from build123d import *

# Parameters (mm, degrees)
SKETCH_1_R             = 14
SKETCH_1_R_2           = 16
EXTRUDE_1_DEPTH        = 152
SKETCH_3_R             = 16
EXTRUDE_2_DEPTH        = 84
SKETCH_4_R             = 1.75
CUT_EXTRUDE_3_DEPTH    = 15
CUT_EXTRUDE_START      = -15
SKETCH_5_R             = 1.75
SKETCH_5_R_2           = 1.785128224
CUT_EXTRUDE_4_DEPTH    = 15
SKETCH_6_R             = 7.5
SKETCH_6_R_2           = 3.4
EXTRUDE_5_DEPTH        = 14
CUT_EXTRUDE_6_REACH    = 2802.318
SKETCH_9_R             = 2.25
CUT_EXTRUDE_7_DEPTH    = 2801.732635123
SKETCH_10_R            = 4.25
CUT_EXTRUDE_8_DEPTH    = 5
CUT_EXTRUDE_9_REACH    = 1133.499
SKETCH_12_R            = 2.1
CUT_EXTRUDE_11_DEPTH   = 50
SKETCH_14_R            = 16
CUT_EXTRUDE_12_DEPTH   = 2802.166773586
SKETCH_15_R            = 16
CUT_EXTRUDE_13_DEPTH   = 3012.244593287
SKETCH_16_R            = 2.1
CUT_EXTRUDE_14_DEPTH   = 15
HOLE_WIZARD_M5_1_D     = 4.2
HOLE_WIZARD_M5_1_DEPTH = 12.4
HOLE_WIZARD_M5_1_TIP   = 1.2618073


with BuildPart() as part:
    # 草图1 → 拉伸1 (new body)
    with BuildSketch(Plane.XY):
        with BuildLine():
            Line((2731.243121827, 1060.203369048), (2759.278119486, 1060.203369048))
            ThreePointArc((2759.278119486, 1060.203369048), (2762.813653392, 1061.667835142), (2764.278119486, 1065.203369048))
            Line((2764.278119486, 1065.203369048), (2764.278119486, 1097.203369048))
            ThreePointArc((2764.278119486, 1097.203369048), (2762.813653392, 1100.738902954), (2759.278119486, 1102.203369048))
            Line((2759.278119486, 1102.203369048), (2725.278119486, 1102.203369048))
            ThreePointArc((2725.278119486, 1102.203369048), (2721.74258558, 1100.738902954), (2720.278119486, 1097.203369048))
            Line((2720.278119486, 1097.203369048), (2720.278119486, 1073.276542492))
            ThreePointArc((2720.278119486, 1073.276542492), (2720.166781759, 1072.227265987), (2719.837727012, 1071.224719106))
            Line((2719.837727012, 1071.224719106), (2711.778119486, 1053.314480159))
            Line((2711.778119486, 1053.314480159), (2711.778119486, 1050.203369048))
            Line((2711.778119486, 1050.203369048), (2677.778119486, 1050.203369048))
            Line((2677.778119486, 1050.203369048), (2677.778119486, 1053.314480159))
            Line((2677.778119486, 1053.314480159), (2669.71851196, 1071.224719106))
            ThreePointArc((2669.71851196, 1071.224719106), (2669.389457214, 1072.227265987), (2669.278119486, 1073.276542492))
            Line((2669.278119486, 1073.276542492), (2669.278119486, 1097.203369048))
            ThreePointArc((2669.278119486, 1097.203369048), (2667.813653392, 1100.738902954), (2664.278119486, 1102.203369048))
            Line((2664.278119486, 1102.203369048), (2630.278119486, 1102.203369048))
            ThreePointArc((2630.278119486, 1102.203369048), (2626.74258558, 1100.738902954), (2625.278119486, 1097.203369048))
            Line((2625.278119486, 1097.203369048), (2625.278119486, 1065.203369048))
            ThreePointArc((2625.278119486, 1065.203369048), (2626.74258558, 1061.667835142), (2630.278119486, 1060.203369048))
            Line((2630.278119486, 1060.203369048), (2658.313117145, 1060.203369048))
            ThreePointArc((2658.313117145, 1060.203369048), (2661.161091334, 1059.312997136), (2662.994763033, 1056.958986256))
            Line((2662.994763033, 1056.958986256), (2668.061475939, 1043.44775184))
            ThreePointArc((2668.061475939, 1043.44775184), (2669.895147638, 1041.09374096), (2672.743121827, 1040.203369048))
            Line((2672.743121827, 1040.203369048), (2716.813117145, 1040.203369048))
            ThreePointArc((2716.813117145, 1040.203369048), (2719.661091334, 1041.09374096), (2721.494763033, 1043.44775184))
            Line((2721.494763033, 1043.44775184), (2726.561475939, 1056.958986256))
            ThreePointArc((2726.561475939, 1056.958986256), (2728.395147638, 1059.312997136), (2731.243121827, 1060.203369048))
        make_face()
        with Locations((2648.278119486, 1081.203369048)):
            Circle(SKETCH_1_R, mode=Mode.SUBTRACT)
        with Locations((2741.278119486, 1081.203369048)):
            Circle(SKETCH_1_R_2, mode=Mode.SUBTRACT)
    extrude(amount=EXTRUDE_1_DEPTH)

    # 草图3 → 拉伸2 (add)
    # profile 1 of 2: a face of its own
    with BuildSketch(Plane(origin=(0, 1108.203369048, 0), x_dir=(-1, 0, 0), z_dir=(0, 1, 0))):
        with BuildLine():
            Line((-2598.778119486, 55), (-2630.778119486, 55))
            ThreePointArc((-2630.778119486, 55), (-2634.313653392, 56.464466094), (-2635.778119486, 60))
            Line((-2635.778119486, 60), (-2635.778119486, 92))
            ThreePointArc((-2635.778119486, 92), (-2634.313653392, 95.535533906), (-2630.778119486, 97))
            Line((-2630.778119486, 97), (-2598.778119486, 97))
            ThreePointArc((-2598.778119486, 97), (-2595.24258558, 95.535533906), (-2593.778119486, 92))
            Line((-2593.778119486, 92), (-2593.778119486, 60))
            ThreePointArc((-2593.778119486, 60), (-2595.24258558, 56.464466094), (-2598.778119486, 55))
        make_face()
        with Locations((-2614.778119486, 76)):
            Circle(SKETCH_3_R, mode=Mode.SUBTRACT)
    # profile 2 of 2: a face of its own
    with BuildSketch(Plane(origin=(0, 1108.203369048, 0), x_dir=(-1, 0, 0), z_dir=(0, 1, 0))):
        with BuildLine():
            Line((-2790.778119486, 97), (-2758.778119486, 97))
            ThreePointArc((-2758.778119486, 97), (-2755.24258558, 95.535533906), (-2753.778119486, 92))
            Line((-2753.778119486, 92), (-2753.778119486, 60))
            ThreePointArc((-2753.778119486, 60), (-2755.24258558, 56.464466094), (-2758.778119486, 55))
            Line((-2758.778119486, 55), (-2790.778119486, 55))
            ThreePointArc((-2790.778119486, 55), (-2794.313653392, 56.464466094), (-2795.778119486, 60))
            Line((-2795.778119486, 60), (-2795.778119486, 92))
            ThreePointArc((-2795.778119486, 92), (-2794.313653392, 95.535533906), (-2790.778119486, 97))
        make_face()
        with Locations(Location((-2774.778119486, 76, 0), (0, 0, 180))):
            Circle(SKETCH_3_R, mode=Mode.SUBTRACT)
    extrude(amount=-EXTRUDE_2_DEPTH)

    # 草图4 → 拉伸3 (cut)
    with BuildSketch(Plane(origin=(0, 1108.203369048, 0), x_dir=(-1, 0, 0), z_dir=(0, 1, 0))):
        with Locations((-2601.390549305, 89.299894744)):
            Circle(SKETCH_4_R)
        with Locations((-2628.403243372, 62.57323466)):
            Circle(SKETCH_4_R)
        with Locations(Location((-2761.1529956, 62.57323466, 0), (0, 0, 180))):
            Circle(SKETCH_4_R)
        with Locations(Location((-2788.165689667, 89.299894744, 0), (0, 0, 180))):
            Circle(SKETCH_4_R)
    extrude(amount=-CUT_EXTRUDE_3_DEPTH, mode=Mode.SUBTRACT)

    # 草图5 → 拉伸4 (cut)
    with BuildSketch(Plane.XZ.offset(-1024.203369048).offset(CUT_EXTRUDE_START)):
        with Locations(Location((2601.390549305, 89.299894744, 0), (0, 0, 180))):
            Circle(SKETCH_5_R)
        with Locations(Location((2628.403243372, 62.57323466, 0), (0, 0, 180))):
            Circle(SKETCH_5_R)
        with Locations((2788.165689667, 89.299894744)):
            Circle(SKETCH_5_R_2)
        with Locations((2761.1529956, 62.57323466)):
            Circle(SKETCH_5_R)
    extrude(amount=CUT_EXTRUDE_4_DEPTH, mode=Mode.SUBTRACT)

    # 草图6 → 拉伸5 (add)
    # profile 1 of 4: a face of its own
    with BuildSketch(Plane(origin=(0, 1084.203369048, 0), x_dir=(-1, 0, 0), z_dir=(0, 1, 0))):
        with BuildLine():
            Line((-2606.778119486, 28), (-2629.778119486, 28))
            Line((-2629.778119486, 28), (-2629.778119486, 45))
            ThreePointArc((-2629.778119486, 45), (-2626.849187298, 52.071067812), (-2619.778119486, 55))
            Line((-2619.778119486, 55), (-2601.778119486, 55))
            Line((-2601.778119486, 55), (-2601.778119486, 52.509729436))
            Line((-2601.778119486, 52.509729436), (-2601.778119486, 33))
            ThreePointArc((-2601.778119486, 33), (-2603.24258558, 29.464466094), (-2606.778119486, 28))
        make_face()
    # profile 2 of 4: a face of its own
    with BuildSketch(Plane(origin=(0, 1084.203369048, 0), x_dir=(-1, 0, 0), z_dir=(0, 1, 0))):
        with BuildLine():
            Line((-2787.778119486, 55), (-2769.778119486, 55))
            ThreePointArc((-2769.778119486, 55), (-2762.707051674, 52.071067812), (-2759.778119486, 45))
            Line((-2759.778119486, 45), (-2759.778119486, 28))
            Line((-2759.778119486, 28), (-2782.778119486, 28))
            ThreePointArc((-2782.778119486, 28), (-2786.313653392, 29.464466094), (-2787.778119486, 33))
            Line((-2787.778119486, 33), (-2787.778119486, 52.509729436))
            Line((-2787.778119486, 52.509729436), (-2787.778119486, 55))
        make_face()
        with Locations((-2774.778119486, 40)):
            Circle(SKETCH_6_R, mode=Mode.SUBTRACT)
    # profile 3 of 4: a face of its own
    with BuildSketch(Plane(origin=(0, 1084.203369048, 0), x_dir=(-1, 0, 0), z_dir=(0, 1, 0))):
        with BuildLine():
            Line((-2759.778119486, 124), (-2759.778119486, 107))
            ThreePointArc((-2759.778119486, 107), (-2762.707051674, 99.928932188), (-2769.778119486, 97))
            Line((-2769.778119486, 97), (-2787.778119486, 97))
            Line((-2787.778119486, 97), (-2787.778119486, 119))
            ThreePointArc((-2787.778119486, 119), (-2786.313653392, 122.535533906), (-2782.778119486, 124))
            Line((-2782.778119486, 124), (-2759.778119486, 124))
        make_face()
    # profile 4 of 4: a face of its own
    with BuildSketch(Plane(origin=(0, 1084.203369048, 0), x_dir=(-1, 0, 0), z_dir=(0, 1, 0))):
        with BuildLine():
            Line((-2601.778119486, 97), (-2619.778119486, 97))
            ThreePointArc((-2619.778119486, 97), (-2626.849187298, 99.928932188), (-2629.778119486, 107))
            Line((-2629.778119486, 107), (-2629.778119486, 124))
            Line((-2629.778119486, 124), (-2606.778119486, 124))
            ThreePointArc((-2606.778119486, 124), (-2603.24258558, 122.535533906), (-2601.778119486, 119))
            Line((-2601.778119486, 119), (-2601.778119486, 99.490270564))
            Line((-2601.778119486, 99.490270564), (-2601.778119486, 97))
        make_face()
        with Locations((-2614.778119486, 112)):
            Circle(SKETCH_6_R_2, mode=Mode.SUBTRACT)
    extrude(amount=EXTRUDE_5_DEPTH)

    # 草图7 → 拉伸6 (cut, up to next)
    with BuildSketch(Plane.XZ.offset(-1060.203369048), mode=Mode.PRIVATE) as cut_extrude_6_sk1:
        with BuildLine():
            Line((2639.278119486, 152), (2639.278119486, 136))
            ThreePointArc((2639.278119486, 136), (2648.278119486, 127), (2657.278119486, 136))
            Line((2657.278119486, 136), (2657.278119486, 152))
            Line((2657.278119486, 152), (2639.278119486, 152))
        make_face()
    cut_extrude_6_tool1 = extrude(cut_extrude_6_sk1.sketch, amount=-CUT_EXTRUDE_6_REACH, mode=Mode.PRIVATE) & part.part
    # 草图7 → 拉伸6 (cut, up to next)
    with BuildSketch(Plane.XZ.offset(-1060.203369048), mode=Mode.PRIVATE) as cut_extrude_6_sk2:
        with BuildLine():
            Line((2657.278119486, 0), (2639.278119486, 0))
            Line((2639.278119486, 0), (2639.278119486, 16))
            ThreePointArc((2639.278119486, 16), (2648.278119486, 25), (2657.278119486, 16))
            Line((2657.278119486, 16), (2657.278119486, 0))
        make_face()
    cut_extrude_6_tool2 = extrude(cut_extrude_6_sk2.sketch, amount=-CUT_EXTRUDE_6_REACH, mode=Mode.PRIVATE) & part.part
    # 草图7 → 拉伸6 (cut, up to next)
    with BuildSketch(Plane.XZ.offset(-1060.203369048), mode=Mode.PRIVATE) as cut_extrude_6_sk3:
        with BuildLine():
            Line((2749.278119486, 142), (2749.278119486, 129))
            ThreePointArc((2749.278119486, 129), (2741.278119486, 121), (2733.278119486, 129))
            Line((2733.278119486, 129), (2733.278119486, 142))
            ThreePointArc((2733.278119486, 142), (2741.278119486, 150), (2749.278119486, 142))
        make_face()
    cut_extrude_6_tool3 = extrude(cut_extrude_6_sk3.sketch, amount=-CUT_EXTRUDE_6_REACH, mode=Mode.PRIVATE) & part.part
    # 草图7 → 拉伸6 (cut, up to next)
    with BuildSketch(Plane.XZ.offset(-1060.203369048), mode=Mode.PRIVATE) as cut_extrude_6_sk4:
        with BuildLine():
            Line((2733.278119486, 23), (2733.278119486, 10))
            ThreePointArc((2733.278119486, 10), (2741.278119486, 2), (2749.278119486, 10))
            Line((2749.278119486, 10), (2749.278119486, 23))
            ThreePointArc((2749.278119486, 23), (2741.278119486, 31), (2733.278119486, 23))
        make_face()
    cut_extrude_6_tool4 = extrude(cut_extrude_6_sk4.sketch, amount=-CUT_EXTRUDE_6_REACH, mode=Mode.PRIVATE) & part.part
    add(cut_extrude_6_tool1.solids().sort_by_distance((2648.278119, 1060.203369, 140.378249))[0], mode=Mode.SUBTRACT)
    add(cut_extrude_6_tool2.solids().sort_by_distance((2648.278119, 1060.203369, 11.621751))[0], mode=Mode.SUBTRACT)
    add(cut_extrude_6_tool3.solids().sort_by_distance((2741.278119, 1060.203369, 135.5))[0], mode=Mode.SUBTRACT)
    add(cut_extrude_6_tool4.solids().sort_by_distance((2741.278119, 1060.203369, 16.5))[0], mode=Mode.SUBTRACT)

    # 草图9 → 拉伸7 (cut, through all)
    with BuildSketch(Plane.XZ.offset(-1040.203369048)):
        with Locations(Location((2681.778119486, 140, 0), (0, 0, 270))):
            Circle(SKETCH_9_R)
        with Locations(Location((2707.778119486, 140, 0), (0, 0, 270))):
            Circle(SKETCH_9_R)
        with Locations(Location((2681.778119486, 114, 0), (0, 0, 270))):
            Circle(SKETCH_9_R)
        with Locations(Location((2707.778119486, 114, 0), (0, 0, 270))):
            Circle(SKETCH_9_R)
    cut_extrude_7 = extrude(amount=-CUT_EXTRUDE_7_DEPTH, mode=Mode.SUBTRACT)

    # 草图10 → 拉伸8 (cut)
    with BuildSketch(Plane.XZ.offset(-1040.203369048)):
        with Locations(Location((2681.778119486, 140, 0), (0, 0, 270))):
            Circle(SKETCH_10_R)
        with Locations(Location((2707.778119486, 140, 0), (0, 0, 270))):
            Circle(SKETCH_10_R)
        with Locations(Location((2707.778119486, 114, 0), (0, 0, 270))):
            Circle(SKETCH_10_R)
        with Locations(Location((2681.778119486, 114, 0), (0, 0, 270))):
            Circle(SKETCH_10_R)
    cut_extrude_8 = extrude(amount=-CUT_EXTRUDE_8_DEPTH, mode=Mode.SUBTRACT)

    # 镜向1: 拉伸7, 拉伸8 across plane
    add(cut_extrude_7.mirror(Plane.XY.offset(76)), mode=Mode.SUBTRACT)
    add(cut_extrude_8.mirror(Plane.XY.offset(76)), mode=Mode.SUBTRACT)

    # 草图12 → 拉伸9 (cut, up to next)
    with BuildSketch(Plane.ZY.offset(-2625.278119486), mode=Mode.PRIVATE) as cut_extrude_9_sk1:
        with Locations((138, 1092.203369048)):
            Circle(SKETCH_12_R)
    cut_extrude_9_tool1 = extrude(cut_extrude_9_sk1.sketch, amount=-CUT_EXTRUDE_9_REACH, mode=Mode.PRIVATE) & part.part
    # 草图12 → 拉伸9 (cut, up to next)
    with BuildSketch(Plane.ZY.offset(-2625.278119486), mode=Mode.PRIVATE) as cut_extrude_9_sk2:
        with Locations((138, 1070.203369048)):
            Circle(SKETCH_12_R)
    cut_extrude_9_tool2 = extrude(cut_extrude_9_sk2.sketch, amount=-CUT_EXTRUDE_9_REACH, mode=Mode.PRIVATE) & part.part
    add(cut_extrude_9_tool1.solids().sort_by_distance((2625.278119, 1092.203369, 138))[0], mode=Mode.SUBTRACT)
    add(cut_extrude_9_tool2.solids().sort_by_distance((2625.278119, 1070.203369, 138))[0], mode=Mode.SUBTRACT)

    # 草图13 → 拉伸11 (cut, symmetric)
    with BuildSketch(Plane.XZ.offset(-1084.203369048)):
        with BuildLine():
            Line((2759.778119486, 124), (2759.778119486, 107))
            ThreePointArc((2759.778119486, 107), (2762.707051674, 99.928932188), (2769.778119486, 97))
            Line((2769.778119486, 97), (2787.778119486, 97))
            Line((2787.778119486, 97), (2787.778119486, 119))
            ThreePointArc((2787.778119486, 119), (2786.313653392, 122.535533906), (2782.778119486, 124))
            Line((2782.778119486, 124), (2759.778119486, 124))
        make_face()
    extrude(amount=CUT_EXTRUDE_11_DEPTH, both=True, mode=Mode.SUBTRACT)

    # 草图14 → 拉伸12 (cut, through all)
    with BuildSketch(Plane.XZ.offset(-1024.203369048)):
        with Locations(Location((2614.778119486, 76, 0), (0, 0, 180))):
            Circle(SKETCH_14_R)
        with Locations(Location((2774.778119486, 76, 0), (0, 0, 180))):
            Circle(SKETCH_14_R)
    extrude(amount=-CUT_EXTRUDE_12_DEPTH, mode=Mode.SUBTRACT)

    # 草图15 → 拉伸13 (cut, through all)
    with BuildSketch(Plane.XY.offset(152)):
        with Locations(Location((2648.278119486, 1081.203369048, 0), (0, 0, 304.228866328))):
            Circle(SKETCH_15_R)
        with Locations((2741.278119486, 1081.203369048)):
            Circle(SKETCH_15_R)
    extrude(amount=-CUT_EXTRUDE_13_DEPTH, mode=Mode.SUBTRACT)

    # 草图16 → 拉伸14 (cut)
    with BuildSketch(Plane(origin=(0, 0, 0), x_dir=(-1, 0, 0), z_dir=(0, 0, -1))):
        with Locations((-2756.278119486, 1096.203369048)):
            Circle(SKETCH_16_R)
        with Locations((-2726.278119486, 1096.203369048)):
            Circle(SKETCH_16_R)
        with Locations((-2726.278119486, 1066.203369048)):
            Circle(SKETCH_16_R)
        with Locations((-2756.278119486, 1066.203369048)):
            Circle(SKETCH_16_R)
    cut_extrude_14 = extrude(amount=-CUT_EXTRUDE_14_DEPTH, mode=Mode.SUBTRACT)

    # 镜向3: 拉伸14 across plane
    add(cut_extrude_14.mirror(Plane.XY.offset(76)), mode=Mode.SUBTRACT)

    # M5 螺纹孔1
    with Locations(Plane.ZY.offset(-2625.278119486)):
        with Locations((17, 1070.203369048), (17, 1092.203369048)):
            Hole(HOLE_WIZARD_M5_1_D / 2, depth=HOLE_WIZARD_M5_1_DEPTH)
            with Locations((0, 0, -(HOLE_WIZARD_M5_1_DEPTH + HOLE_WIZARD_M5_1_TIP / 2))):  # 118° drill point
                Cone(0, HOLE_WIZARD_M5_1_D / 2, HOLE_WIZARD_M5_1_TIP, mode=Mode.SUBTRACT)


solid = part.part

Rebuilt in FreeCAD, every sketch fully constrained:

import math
import FreeCAD as App
import Part
import Sketcher

V = App.Vector

doc = App.newDocument("Part")
body = doc.addObject("PartDesign::Body", "Body")

# Sketch on XY plane
sketch1 = doc.addObject("Sketcher::SketchObject", "Sketch")
body.addObject(sketch1)
sketch1.AttachmentSupport = (doc.XY_Plane, [""])
sketch1.MapMode = "FlatFace"
sketch1.addGeometry([
    Part.LineSegment(V(2731.2, 1060.2, 0), V(2759.3, 1060.2, 0)),  # 0
    Part.ArcOfCircle(Part.Circle(V(2759.3, 1065.2, 0), V(0, 0, 1), 5), math.radians(-90), math.radians(0)),  # 1
    Part.LineSegment(V(2764.3, 1065.2, 0), V(2764.3, 1097.2, 0)),  # 2
    Part.ArcOfCircle(Part.Circle(V(2759.3, 1097.2, 0), V(0, 0, 1), 5), math.radians(0), math.radians(90)),  # 3
    Part.LineSegment(V(2759.3, 1102.2, 0), V(2725.3, 1102.2, 0)),  # 4
    Part.ArcOfCircle(Part.Circle(V(2725.3, 1097.2, 0), V(0, 0, 1), 5), math.radians(90), math.radians(180)),  # 5
    Part.LineSegment(V(2720.3, 1097.2, 0), V(2720.3, 1073.3, 0)),  # 6
    Part.ArcOfCircle(Part.Circle(V(2715.3, 1073.3, 0), V(0, 0, 1), 5), math.radians(-24), math.radians(0)),  # 7
    Part.LineSegment(V(2719.8, 1071.2, 0), V(2711.8, 1053.3, 0)),  # 8
    Part.LineSegment(V(2711.8, 1053.3, 0), V(2711.8, 1050.2, 0)),  # 9
    Part.LineSegment(V(2711.8, 1050.2, 0), V(2677.8, 1050.2, 0)),  # 10
    Part.LineSegment(V(2677.8, 1050.2, 0), V(2677.8, 1053.3, 0)),  # 11
    Part.LineSegment(V(2677.8, 1053.3, 0), V(2669.7, 1071.2, 0)),  # 12
    Part.ArcOfCircle(Part.Circle(V(2674.3, 1073.3, 0), V(0, 0, 1), 5), math.radians(-180), math.radians(-156)),  # 13
    Part.LineSegment(V(2669.3, 1073.3, 0), V(2669.3, 1097.2, 0)),  # 14
    Part.ArcOfCircle(Part.Circle(V(2664.3, 1097.2, 0), V(0, 0, 1), 5), math.radians(0), math.radians(90)),  # 15
    Part.LineSegment(V(2664.3, 1102.2, 0), V(2630.3, 1102.2, 0)),  # 16
    Part.ArcOfCircle(Part.Circle(V(2630.3, 1097.2, 0), V(0, 0, 1), 5), math.radians(90), math.radians(180)),  # 17
    Part.LineSegment(V(2625.3, 1097.2, 0), V(2625.3, 1065.2, 0)),  # 18
    Part.ArcOfCircle(Part.Circle(V(2630.3, 1065.2, 0), V(0, 0, 1), 5), math.radians(180), math.radians(270)),  # 19
    Part.LineSegment(V(2630.3, 1060.2, 0), V(2658.3, 1060.2, 0)),  # 20
    Part.ArcOfCircle(Part.Circle(V(2658.3, 1055.2, 0), V(0, 0, 1), 5), math.radians(21), math.radians(90)),  # 21
    Part.LineSegment(V(2663, 1057, 0), V(2668.1, 1043.4, 0)),  # 22
    Part.ArcOfCircle(Part.Circle(V(2672.7, 1045.2, 0), V(0, 0, 1), 5), math.radians(-159), math.radians(-90)),  # 23
    Part.LineSegment(V(2672.7, 1040.2, 0), V(2716.8, 1040.2, 0)),  # 24
    Part.ArcOfCircle(Part.Circle(V(2716.8, 1045.2, 0), V(0, 0, 1), 5), math.radians(-90), math.radians(-21)),  # 25
    Part.LineSegment(V(2721.5, 1043.4, 0), V(2726.6, 1057, 0)),  # 26
    Part.ArcOfCircle(Part.Circle(V(2731.2, 1055.2, 0), V(0, 0, 1), 5), math.radians(90), math.radians(159)),  # 27
    Part.Circle(V(2648.3, 1081.2, 0), V(0, 0, 1), 14),  # 28
    Part.Circle(V(2741.3, 1081.2, 0), V(0, 0, 1), 16),  # 29
], False)
sketch1.addConstraint([
    Sketcher.Constraint("Tangent", 0, 2, 1, 1),
    Sketcher.Constraint("Tangent", 1, 2, 2, 1),
    Sketcher.Constraint("Tangent", 2, 2, 3, 1),
    Sketcher.Constraint("Tangent", 3, 2, 4, 1),
    Sketcher.Constraint("Tangent", 4, 2, 5, 1),
    Sketcher.Constraint("Tangent", 5, 2, 6, 1),
    Sketcher.Constraint("Tangent", 6, 2, 7, 2),
    Sketcher.Constraint("Tangent", 7, 1, 8, 1),
    Sketcher.Constraint("Coincident", 8, 2, 9, 1),
    Sketcher.Constraint("Coincident", 9, 2, 10, 1),
    Sketcher.Constraint("Coincident", 10, 2, 11, 1),
    Sketcher.Constraint("Coincident", 11, 2, 12, 1),
    Sketcher.Constraint("Tangent", 12, 2, 13, 2),
    Sketcher.Constraint("Tangent", 13, 1, 14, 1),
    Sketcher.Constraint("Tangent", 14, 2, 15, 1),
    Sketcher.Constraint("Tangent", 15, 2, 16, 1),
    Sketcher.Constraint("Tangent", 16, 2, 17, 1),
    Sketcher.Constraint("Tangent", 17, 2, 18, 1),
    Sketcher.Constraint("Tangent", 18, 2, 19, 1),
    Sketcher.Constraint("Tangent", 19, 2, 20, 1),
    Sketcher.Constraint("Tangent", 20, 2, 21, 2),
    Sketcher.Constraint("Tangent", 21, 1, 22, 1),
    Sketcher.Constraint("Tangent", 22, 2, 23, 1),
    Sketcher.Constraint("Tangent", 23, 2, 24, 1),
    Sketcher.Constraint("Tangent", 24, 2, 25, 1),
    Sketcher.Constraint("Tangent", 25, 2, 26, 1),
    Sketcher.Constraint("Tangent", 26, 2, 27, 2),
    Sketcher.Constraint("Tangent", 27, 1, 0, 1),
    Sketcher.Constraint("Horizontal", 0),
    Sketcher.Constraint("Vertical", 2),
    Sketcher.Constraint("Horizontal", 4),
    Sketcher.Constraint("Vertical", 6),
    Sketcher.Constraint("Vertical", 9),
    Sketcher.Constraint("Horizontal", 10),
    Sketcher.Constraint("Vertical", 11),
    Sketcher.Constraint("Vertical", 14),
    Sketcher.Constraint("Horizontal", 16),
    Sketcher.Constraint("Vertical", 18),
    Sketcher.Constraint("Horizontal", 20),
    Sketcher.Constraint("Horizontal", 24),
    Sketcher.Constraint("Equal", 1, 3),
    Sketcher.Constraint("Equal", 3, 5),
    Sketcher.Constraint("Equal", 5, 7),
    Sketcher.Constraint("Equal", 7, 13),
    Sketcher.Constraint("Equal", 13, 15),
    Sketcher.Constraint("Equal", 15, 17),
    Sketcher.Constraint("Equal", 17, 19),
    Sketcher.Constraint("Equal", 19, 21),
    Sketcher.Constraint("Equal", 21, 23),
    Sketcher.Constraint("Equal", 23, 25),
    Sketcher.Constraint("Equal", 25, 27),
    Sketcher.Constraint("Horizontal", 7, 3, 13, 3),
    Sketcher.Constraint("Horizontal", 5, 3, 15, 3),
    Sketcher.Constraint("Horizontal", 1, 3, 19, 3),
    Sketcher.Constraint("Horizontal", 28, 3, 29, 3),
    Sketcher.Constraint("Horizontal", 8, 2, 11, 2),
    Sketcher.Constraint("Horizontal", 7, 1, 12, 2),
    Sketcher.Constraint("Horizontal", 22, 2, 25, 2),
    Sketcher.Constraint("Equal", 4, 10),
    Sketcher.Constraint("Equal", 10, 16),
    Sketcher.Constraint("Equal", 0, 20),
    Sketcher.Constraint("Diameter", 28, 28.0),
    Sketcher.Constraint("Diameter", 29, 32.0),
    Sketcher.Constraint("Radius", 1, 5.0),
    Sketcher.Constraint("DistanceX", 4, 2, 4, 1, 34.0),
    Sketcher.Constraint("DistanceY", 2, 1, 2, 2, 32.0),
    Sketcher.Constraint("DistanceX", 13, 3, 7, 3, 41.0),
    Sketcher.Constraint("DistanceY", 23, 3, 21, 3, 10.0),
    Sketcher.Constraint("DistanceX", 28, 3, 15, 3, 16.0),
    Sketcher.Constraint("DistanceY", 28, 3, 15, 3, 16.0),
    Sketcher.Constraint("DistanceX", 5, 3, 29, 3, 16.0),
    Sketcher.Constraint("DistanceY", 25, 3, 9, 2, 5.0),
    Sketcher.Constraint("DistanceY", 9, 2, 9, 1, 3.111111),
    Sketcher.Constraint("Distance", 8, 19.64011),
    Sketcher.Constraint("DistanceX", 0, 1, 0, 2, 28.034998),
    Sketcher.Constraint("DistanceX", 24, 1, 24, 2, 44.069995),
    Sketcher.Constraint("DistanceX", -1, 1, 1, 3, 2759.278119),
    Sketcher.Constraint("DistanceY", -1, 1, 1, 3, 1065.203369),
])
pad1 = doc.addObject("PartDesign::Pad", "Pad")
body.addObject(pad1)
pad1.Profile = sketch1
pad1.Length = 152

# Sketch on XZ plane
sketch2 = doc.addObject("Sketcher::SketchObject", "Sketch001")
body.addObject(sketch2)
sketch2.AttachmentSupport = (doc.XZ_Plane, [""])
sketch2.MapMode = "FlatFace"
sketch2.AttachmentOffset = App.Placement(V(0, 0, -1108.203369), App.Rotation())
sketch2.addGeometry([
    Part.LineSegment(V(2631, 55, 0), V(2599, 55, 0)),  # 0
    Part.ArcOfCircle(Part.Circle(V(2599, 60, 0), V(0, 0, 1), 5), math.radians(180), math.radians(270)),  # 1
    Part.LineSegment(V(2594, 60, 0), V(2594, 92, 0)),  # 2
    Part.ArcOfCircle(Part.Circle(V(2599, 92, 0), V(0, 0, 1), 5), math.radians(90), math.radians(180)),  # 3
    Part.LineSegment(V(2599, 97, 0), V(2631, 97, 0)),  # 4
    Part.ArcOfCircle(Part.Circle(V(2631, 92, 0), V(0, 0, 1), 5), math.radians(0), math.radians(90)),  # 5
    Part.LineSegment(V(2636, 92, 0), V(2636, 60, 0)),  # 6
    Part.ArcOfCircle(Part.Circle(V(2631, 60, 0), V(0, 0, 1), 5), math.radians(-90), math.radians(0)),  # 7
    Part.Circle(V(2615, 76, 0), V(0, 0, 1), 16),  # 8
    Part.LineSegment(V(2759, 97, 0), V(2791, 97, 0)),  # 9
    Part.ArcOfCircle(Part.Circle(V(2791, 92, 0), V(0, 0, 1), 5), math.radians(0), math.radians(90)),  # 10
    Part.LineSegment(V(2796, 92, 0), V(2796, 60, 0)),  # 11
    Part.ArcOfCircle(Part.Circle(V(2791, 60, 0), V(0, 0, 1), 5), math.radians(-90), math.radians(0)),  # 12
    Part.LineSegment(V(2791, 55, 0), V(2759, 55, 0)),  # 13
    Part.ArcOfCircle(Part.Circle(V(2759, 60, 0), V(0, 0, 1), 5), math.radians(180), math.radians(270)),  # 14
    Part.LineSegment(V(2754, 60, 0), V(2754, 92, 0)),  # 15
    Part.ArcOfCircle(Part.Circle(V(2759, 92, 0), V(0, 0, 1), 5), math.radians(90), math.radians(180)),  # 16
    Part.Circle(V(2775, 76, 0), V(0, 0, 1), 16),  # 17
], False)
sketch2.addConstraint([
    Sketcher.Constraint("Tangent", 0, 2, 1, 2),
    Sketcher.Constraint("Tangent", 1, 1, 2, 1),
    Sketcher.Constraint("Tangent", 2, 2, 3, 2),
    Sketcher.Constraint("Tangent", 3, 1, 4, 1),
    Sketcher.Constraint("Tangent", 4, 2, 5, 2),
    Sketcher.Constraint("Tangent", 5, 1, 6, 1),
    Sketcher.Constraint("Tangent", 6, 2, 7, 2),
    Sketcher.Constraint("Tangent", 7, 1, 0, 1),
    Sketcher.Constraint("Tangent", 9, 2, 10, 2),
    Sketcher.Constraint("Tangent", 10, 1, 11, 1),
    Sketcher.Constraint("Tangent", 11, 2, 12, 2),
    Sketcher.Constraint("Tangent", 12, 1, 13, 1),
    Sketcher.Constraint("Tangent", 13, 2, 14, 2),
    Sketcher.Constraint("Tangent", 14, 1, 15, 1),
    Sketcher.Constraint("Tangent", 15, 2, 16, 2),
    Sketcher.Constraint("Tangent", 16, 1, 9, 1),
    Sketcher.Constraint("Horizontal", 0),
    Sketcher.Constraint("Vertical", 2),
    Sketcher.Constraint("Horizontal", 4),
    Sketcher.Constraint("Vertical", 6),
    Sketcher.Constraint("Horizontal", 9),
    Sketcher.Constraint("Vertical", 11),
    Sketcher.Constraint("Horizontal", 13),
    Sketcher.Constraint("Vertical", 15),
    Sketcher.Constraint("Equal", 1, 3),
    Sketcher.Constraint("Equal", 3, 5),
    Sketcher.Constraint("Equal", 5, 7),
    Sketcher.Constraint("Equal", 7, 10),
    Sketcher.Constraint("Equal", 10, 12),
    Sketcher.Constraint("Equal", 12, 14),
    Sketcher.Constraint("Equal", 14, 16),
    Sketcher.Constraint("Equal", 8, 17),
    Sketcher.Constraint("Horizontal", 5, 3, 10, 3),
    Sketcher.Constraint("Horizontal", 7, 3, 12, 3),
    Sketcher.Constraint("Horizontal", 8, 3, 17, 3),
    Sketcher.Constraint("Equal", 4, 9),
    Sketcher.Constraint("Equal", 13, 2),
    Sketcher.Constraint("Diameter", 8, 32.0),
    Sketcher.Constraint("Radius", 1, 5.0),
    Sketcher.Constraint("DistanceX", 0, 2, 0, 1, 32.0),
    Sketcher.Constraint("DistanceY", -1, 1, 1, 3, 60.0),
    Sketcher.Constraint("DistanceY", -1, 1, 8, 3, 76.0),
    Sketcher.Constraint("DistanceX", 1, 3, 8, 3, 16.0),
    Sketcher.Constraint("DistanceX", 5, 3, 10, 3, 160.0),
    Sketcher.Constraint("DistanceX", 17, 3, 10, 3, 16.0),
    Sketcher.Constraint("DistanceX", -1, 1, 1, 3, 2598.778119),
])
pad2 = doc.addObject("PartDesign::Pad", "Pad001")
body.addObject(pad2)
pad2.Profile = sketch2
pad2.Length = 84

# Sketch on XZ plane
sketch3 = doc.addObject("Sketcher::SketchObject", "Sketch002")
body.addObject(sketch3)
sketch3.AttachmentSupport = (doc.XZ_Plane, [""])
sketch3.MapMode = "FlatFace"
sketch3.AttachmentOffset = App.Placement(V(0, 0, -1108.203369), App.Rotation())
sketch3.addGeometry([
    Part.Circle(V(2601.4, 89.3, 0), V(0, 0, 1), 1.8),
    Part.Circle(V(2628.4, 62.6, 0), V(0, 0, 1), 1.8),
    Part.Circle(V(2761.2, 62.6, 0), V(0, 0, 1), 1.8),
    Part.Circle(V(2788.2, 89.3, 0), V(0, 0, 1), 1.8),
], False)
sketch3.addConstraint([
    Sketcher.Constraint("Equal", 0, 1),
    Sketcher.Constraint("Equal", 1, 2),
    Sketcher.Constraint("Equal", 2, 3),
    Sketcher.Constraint("Horizontal", 1, 3, 2, 3),
    Sketcher.Constraint("Horizontal", 0, 3, 3, 3),
    Sketcher.Constraint("Diameter", 0, 3.5),
    Sketcher.Constraint("DistanceX", -1, 1, 0, 3, 2601.390549),
    Sketcher.Constraint("DistanceX", -1, 1, 3, 3, 2788.16569),
    Sketcher.Constraint("DistanceY", 1, 3, 0, 3, 26.72666),
    Sketcher.Constraint("DistanceY", -1, 1, 0, 3, 89.299895),
    Sketcher.Constraint("DistanceX", -1, 1, 1, 3, 2628.403243),
    Sketcher.Constraint("DistanceX", -1, 1, 2, 3, 2761.152996),
])
pocket1 = doc.addObject("PartDesign::Pocket", "Pocket")
body.addObject(pocket1)
pocket1.Profile = sketch3
pocket1.Length = 15
pocket1.Reversed = True

# Sketch on XZ plane
sketch4 = doc.addObject("Sketcher::SketchObject", "Sketch003")
body.addObject(sketch4)
sketch4.AttachmentSupport = (doc.XZ_Plane, [""])
sketch4.MapMode = "FlatFace"
sketch4.AttachmentOffset = App.Placement(V(0, 0, -1039.203369), App.Rotation())
sketch4.addGeometry([
    Part.Circle(V(2601.4, 89.3, 0), V(0, 0, 1), 1.8),
    Part.Circle(V(2628.4, 62.6, 0), V(0, 0, 1), 1.8),
    Part.Circle(V(2788.2, 89.3, 0), V(0, 0, 1), 1.8),
    Part.Circle(V(2761.2, 62.6, 0), V(0, 0, 1), 1.8),
], False)
sketch4.addConstraint([
    Sketcher.Constraint("Equal", 0, 1),
    Sketcher.Constraint("Equal", 1, 3),
    Sketcher.Constraint("Horizontal", 0, 3, 2, 3),
    Sketcher.Constraint("Horizontal", 1, 3, 3, 3),
    Sketcher.Constraint("Diameter", 0, 3.5),
    Sketcher.Constraint("Diameter", 2, 3.570256),
    Sketcher.Constraint("DistanceX", -1, 1, 0, 3, 2601.390549),
    Sketcher.Constraint("DistanceX", -1, 1, 2, 3, 2788.16569),
    Sketcher.Constraint("DistanceY", 1, 3, 0, 3, 26.72666),
    Sketcher.Constraint("DistanceY", -1, 1, 0, 3, 89.299895),
    Sketcher.Constraint("DistanceX", -1, 1, 1, 3, 2628.403243),
    Sketcher.Constraint("DistanceX", -1, 1, 3, 3, 2761.152996),
])
pocket2 = doc.addObject("PartDesign::Pocket", "Pocket001")
body.addObject(pocket2)
pocket2.Profile = sketch4
pocket2.Length = 15
pocket2.Reversed = True

# Sketch on XZ plane
sketch5 = doc.addObject("Sketcher::SketchObject", "Sketch004")
body.addObject(sketch5)
sketch5.AttachmentSupport = (doc.XZ_Plane, [""])
sketch5.MapMode = "FlatFace"
sketch5.AttachmentOffset = App.Placement(V(0, 0, -1084.203369), App.Rotation())
sketch5.addGeometry([
    Part.LineSegment(V(2629.8, 28, 0), V(2606.8, 28, 0)),  # 0
    Part.ArcOfCircle(Part.Circle(V(2606.8, 33, 0), V(0, 0, 1), 5), math.radians(180), math.radians(270)),  # 1
    Part.LineSegment(V(2601.8, 33, 0), V(2601.8, 55, 0)),  # 2
    Part.LineSegment(V(2601.8, 55, 0), V(2619.8, 55, 0)),  # 3
    Part.ArcOfCircle(Part.Circle(V(2619.8, 45, 0), V(0, 0, 1), 10), math.radians(0), math.radians(90)),  # 4
    Part.LineSegment(V(2629.8, 45, 0), V(2629.8, 28, 0)),  # 5
    Part.LineSegment(V(2769.8, 55, 0), V(2787.8, 55, 0)),  # 6
    Part.LineSegment(V(2787.8, 55, 0), V(2787.8, 33, 0)),  # 7
    Part.ArcOfCircle(Part.Circle(V(2782.8, 33, 0), V(0, 0, 1), 5), math.radians(-90), math.radians(0)),  # 8
    Part.LineSegment(V(2782.8, 28, 0), V(2759.8, 28, 0)),  # 9
    Part.LineSegment(V(2759.8, 28, 0), V(2759.8, 45, 0)),  # 10
    Part.ArcOfCircle(Part.Circle(V(2769.8, 45, 0), V(0, 0, 1), 10), math.radians(90), math.radians(180)),  # 11
    Part.Circle(V(2774.8, 40, 0), V(0, 0, 1), 7.5),  # 12
    Part.LineSegment(V(2759.8, 107, 0), V(2759.8, 124, 0)),  # 13
    Part.LineSegment(V(2759.8, 124, 0), V(2782.8, 124, 0)),  # 14
    Part.ArcOfCircle(Part.Circle(V(2782.8, 119, 0), V(0, 0, 1), 5), math.radians(0), math.radians(90)),  # 15
    Part.LineSegment(V(2787.8, 119, 0), V(2787.8, 97, 0)),  # 16
    Part.LineSegment(V(2787.8, 97, 0), V(2769.8, 97, 0)),  # 17
    Part.ArcOfCircle(Part.Circle(V(2769.8, 107, 0), V(0, 0, 1), 10), math.radians(180), math.radians(270)),  # 18
    Part.LineSegment(V(2619.8, 97, 0), V(2601.8, 97, 0)),  # 19
    Part.LineSegment(V(2601.8, 97, 0), V(2601.8, 119, 0)),  # 20
    Part.ArcOfCircle(Part.Circle(V(2606.8, 119, 0), V(0, 0, 1), 5), math.radians(90), math.radians(180)),  # 21
    Part.LineSegment(V(2606.8, 124, 0), V(2629.8, 124, 0)),  # 22
    Part.LineSegment(V(2629.8, 124, 0), V(2629.8, 107, 0)),  # 23
    Part.ArcOfCircle(Part.Circle(V(2619.8, 107, 0), V(0, 0, 1), 10), math.radians(-90), math.radians(0)),  # 24
    Part.Circle(V(2614.8, 112, 0), V(0, 0, 1), 3.4),  # 25
], False)
sketch5.addConstraint([
    Sketcher.Constraint("Tangent", 0, 2, 1, 2),
    Sketcher.Constraint("Tangent", 1, 1, 2, 1),
    Sketcher.Constraint("Coincident", 2, 2, 3, 1),
    Sketcher.Constraint("Tangent", 3, 2, 4, 2),
    Sketcher.Constraint("Tangent", 4, 1, 5, 1),
    Sketcher.Constraint("Coincident", 5, 2, 0, 1),
    Sketcher.Constraint("Coincident", 6, 2, 7, 1),
    Sketcher.Constraint("Tangent", 7, 2, 8, 2),
    Sketcher.Constraint("Tangent", 8, 1, 9, 1),
    Sketcher.Constraint("Coincident", 9, 2, 10, 1),
    Sketcher.Constraint("Tangent", 10, 2, 11, 2),
    Sketcher.Constraint("Tangent", 11, 1, 6, 1),
    Sketcher.Constraint("Coincident", 13, 2, 14, 1),
    Sketcher.Constraint("Tangent", 14, 2, 15, 2),
    Sketcher.Constraint("Tangent", 15, 1, 16, 1),
    Sketcher.Constraint("Coincident", 16, 2, 17, 1),
    Sketcher.Constraint("Tangent", 17, 2, 18, 2),
    Sketcher.Constraint("Tangent", 18, 1, 13, 1),
    Sketcher.Constraint("Coincident", 19, 2, 20, 1),
    Sketcher.Constraint("Tangent", 20, 2, 21, 2),
    Sketcher.Constraint("Tangent", 21, 1, 22, 1),
    Sketcher.Constraint("Coincident", 22, 2, 23, 1),
    Sketcher.Constraint("Tangent", 23, 2, 24, 2),
    Sketcher.Constraint("Tangent", 24, 1, 19, 1),
    Sketcher.Constraint("Horizontal", 0),
    Sketcher.Constraint("Vertical", 2),
    Sketcher.Constraint("Horizontal", 3),
    Sketcher.Constraint("Vertical", 5),
    Sketcher.Constraint("Horizontal", 6),
    Sketcher.Constraint("Vertical", 7),
    Sketcher.Constraint("Horizontal", 9),
    Sketcher.Constraint("Vertical", 10),
    Sketcher.Constraint("Vertical", 13),
    Sketcher.Constraint("Horizontal", 14),
    Sketcher.Constraint("Vertical", 16),
    Sketcher.Constraint("Horizontal", 17),
    Sketcher.Constraint("Horizontal", 19),
    Sketcher.Constraint("Vertical", 20),
    Sketcher.Constraint("Horizontal", 22),
    Sketcher.Constraint("Vertical", 23),
    Sketcher.Constraint("Equal", 1, 8),
    Sketcher.Constraint("Equal", 4, 11),
    Sketcher.Constraint("Equal", 8, 15),
    Sketcher.Constraint("Equal", 11, 18),
    Sketcher.Constraint("Equal", 15, 21),
    Sketcher.Constraint("Equal", 18, 24),
    Sketcher.Constraint("Horizontal", 1, 3, 8, 3),
    Sketcher.Constraint("Horizontal", 4, 3, 11, 3),
    Sketcher.Constraint("Horizontal", 15, 3, 21, 3),
    Sketcher.Constraint("Horizontal", 18, 3, 24, 3),
    Sketcher.Constraint("Vertical", 8, 3, 15, 3),
    Sketcher.Constraint("Vertical", 11, 3, 18, 3),
    Sketcher.Constraint("Vertical", 1, 3, 21, 3),
    Sketcher.Constraint("Vertical", 4, 3, 24, 3),
    Sketcher.Constraint("Equal", 3, 6),
    Sketcher.Constraint("Equal", 10, 13),
    Sketcher.Constraint("Diameter", 12, 15.0),
    Sketcher.Constraint("Radius", 1, 5.0),
    Sketcher.Constraint("Radius", 4, 10.0),
    Sketcher.Constraint("Diameter", 25, 6.8),
    Sketcher.Constraint("DistanceX", 0, 2, 0, 1, 23.0),
    Sketcher.Constraint("DistanceY", 2, 1, 2, 2, 22.0),
    Sketcher.Constraint("DistanceY", -1, 1, 1, 3, 33.0),
    Sketcher.Constraint("DistanceY", -1, 1, 12, 3, 40.0),
    Sketcher.Constraint("DistanceY", -1, 1, 15, 3, 119.0),
    Sketcher.Constraint("DistanceY", -1, 1, 25, 3, 112.0),
    Sketcher.Constraint("DistanceX", 4, 3, 8, 3, 163.0),
    Sketcher.Constraint("DistanceX", 11, 3, 12, 3, 5.0),
    Sketcher.Constraint("DistanceX", 25, 3, 24, 3, 5.0),
    Sketcher.Constraint("DistanceX", -1, 1, 1, 3, 2606.778119),
])
pad3 = doc.addObject("PartDesign::Pad", "Pad002")
body.addObject(pad3)
pad3.Profile = sketch5
pad3.Length = 14
pad3.Reversed = True

# Sketch on XZ plane
sketch6 = doc.addObject("Sketcher::SketchObject", "Sketch005")
body.addObject(sketch6)
sketch6.AttachmentSupport = (doc.XZ_Plane, [""])
sketch6.MapMode = "FlatFace"
sketch6.AttachmentOffset = App.Placement(V(0, 0, -1060.203369), App.Rotation())
sketch6.addGeometry([
    Part.LineSegment(V(2639, 152, 0), V(2639, 136, 0)),
    Part.ArcOfCircle(Part.Circle(V(2648, 136, 0), V(0, 0, 1), 9), math.radians(180), math.radians(360)),
    Part.LineSegment(V(2657, 136, 0), V(2657, 152, 0)),
    Part.LineSegment(V(2657, 152, 0), V(2639, 152, 0)),
], False)
sketch6.addConstraint([
    Sketcher.Constraint("Tangent", 0, 2, 1, 1),
    Sketcher.Constraint("Tangent", 1, 2, 2, 1),
    Sketcher.Constraint("Coincident", 2, 2, 3, 1),
    Sketcher.Constraint("Coincident", 3, 2, 0, 1),
    Sketcher.Constraint("Vertical", 0),
    Sketcher.Constraint("Vertical", 2),
    Sketcher.Constraint("Horizontal", 3),
    Sketcher.Constraint("Radius", 1, 9.0),
    Sketcher.Constraint("DistanceY", 0, 2, 0, 1, 16.0),
    Sketcher.Constraint("DistanceY", -1, 1, 1, 3, 136.0),
    Sketcher.Constraint("DistanceX", -1, 1, 1, 3, 2648.278119),
])
pocket3 = doc.addObject("PartDesign::Pocket", "Pocket002")
body.addObject(pocket3)
pocket3.Profile = sketch6
pocket3.Type = "UpToFirst"

# Sketch on XZ plane
sketch7 = doc.addObject("Sketcher::SketchObject", "Sketch006")
body.addObject(sketch7)
sketch7.AttachmentSupport = (doc.XZ_Plane, [""])
sketch7.MapMode = "FlatFace"
sketch7.AttachmentOffset = App.Placement(V(0, 0, -1060.203369), App.Rotation())
sketch7.addGeometry([
    Part.LineSegment(V(2639, 0, 0), V(2657, 0, 0)),
    Part.LineSegment(V(2657, 0, 0), V(2657, 16, 0)),
    Part.ArcOfCircle(Part.Circle(V(2648, 16, 0), V(0, 0, 1), 9), math.radians(0), math.radians(180)),
    Part.LineSegment(V(2639, 16, 0), V(2639, 0, 0)),
], False)
sketch7.addConstraint([
    Sketcher.Constraint("Coincident", 0, 2, 1, 1),
    Sketcher.Constraint("Tangent", 1, 2, 2, 1),
    Sketcher.Constraint("Tangent", 2, 2, 3, 1),
    Sketcher.Constraint("Coincident", 3, 2, 0, 1),
    Sketcher.Constraint("Horizontal", 0),
    Sketcher.Constraint("Vertical", 1),
    Sketcher.Constraint("Vertical", 3),
    Sketcher.Constraint("PointOnObject", 0, 2, -1),
    Sketcher.Constraint("Radius", 2, 9.0),
    Sketcher.Constraint("DistanceY", 1, 1, 1, 2, 16.0),
    Sketcher.Constraint("DistanceX", -1, 1, 2, 3, 2648.278119),
])
pocket4 = doc.addObject("PartDesign::Pocket", "Pocket003")
body.addObject(pocket4)
pocket4.Profile = sketch7
pocket4.Type = "UpToFirst"

# Sketch on XZ plane
sketch8 = doc.addObject("Sketcher::SketchObject", "Sketch007")
body.addObject(sketch8)
sketch8.AttachmentSupport = (doc.XZ_Plane, [""])
sketch8.MapMode = "FlatFace"
sketch8.AttachmentOffset = App.Placement(V(0, 0, -1060.203369), App.Rotation())
sketch8.addGeometry([
    Part.LineSegment(V(2749, 129, 0), V(2749, 142, 0)),
    Part.ArcOfCircle(Part.Circle(V(2741, 142, 0), V(0, 0, 1), 8), math.radians(0), math.radians(180)),
    Part.LineSegment(V(2733, 142, 0), V(2733, 129, 0)),
    Part.ArcOfCircle(Part.Circle(V(2741, 129, 0), V(0, 0, 1), 8), math.radians(180), math.radians(360)),
], False)
sketch8.addConstraint([
    Sketcher.Constraint("Tangent", 0, 2, 1, 1),
    Sketcher.Constraint("Tangent", 1, 2, 2, 1),
    Sketcher.Constraint("Tangent", 2, 2, 3, 1),
    Sketcher.Constraint("Tangent", 3, 2, 0, 1),
    Sketcher.Constraint("Vertical", 0),
    Sketcher.Constraint("Vertical", 2),
    Sketcher.Constraint("Radius", 1, 8.0),
    Sketcher.Constraint("DistanceY", 0, 1, 0, 2, 13.0),
    Sketcher.Constraint("DistanceY", -1, 1, 1, 3, 142.0),
    Sketcher.Constraint("DistanceX", -1, 1, 1, 3, 2741.278119),
])
pocket5 = doc.addObject("PartDesign::Pocket", "Pocket004")
body.addObject(pocket5)
pocket5.Profile = sketch8
pocket5.Type = "UpToFirst"

# Sketch on XZ plane
sketch9 = doc.addObject("Sketcher::SketchObject", "Sketch008")
body.addObject(sketch9)
sketch9.AttachmentSupport = (doc.XZ_Plane, [""])
sketch9.MapMode = "FlatFace"
sketch9.AttachmentOffset = App.Placement(V(0, 0, -1060.203369), App.Rotation())
sketch9.addGeometry([
    Part.LineSegment(V(2733, 23, 0), V(2733, 10, 0)),
    Part.ArcOfCircle(Part.Circle(V(2741, 10, 0), V(0, 0, 1), 8), math.radians(180), math.radians(360)),
    Part.LineSegment(V(2749, 10, 0), V(2749, 23, 0)),
    Part.ArcOfCircle(Part.Circle(V(2741, 23, 0), V(0, 0, 1), 8), math.radians(0), math.radians(180)),
], False)
sketch9.addConstraint([
    Sketcher.Constraint("Tangent", 0, 2, 1, 1),
    Sketcher.Constraint("Tangent", 1, 2, 2, 1),
    Sketcher.Constraint("Tangent", 2, 2, 3, 1),
    Sketcher.Constraint("Tangent", 3, 2, 0, 1),
    Sketcher.Constraint("Vertical", 0),
    Sketcher.Constraint("Vertical", 2),
    Sketcher.Constraint("Radius", 1, 8.0),
    Sketcher.Constraint("DistanceY", 0, 2, 0, 1, 13.0),
    Sketcher.Constraint("DistanceY", -1, 1, 1, 3, 10.0),
    Sketcher.Constraint("DistanceX", -1, 1, 1, 3, 2741.278119),
])
pocket6 = doc.addObject("PartDesign::Pocket", "Pocket005")
body.addObject(pocket6)
pocket6.Profile = sketch9
pocket6.Type = "UpToFirst"

# Sketch on XZ plane
sketch10 = doc.addObject("Sketcher::SketchObject", "Sketch009")
body.addObject(sketch10)
sketch10.AttachmentSupport = (doc.XZ_Plane, [""])
sketch10.MapMode = "FlatFace"
sketch10.AttachmentOffset = App.Placement(V(0, 0, -1040.203369), App.Rotation())
sketch10.addGeometry([
    Part.Circle(V(2681.8, 140, 0), V(0, 0, 1), 2.2),
    Part.Circle(V(2707.8, 140, 0), V(0, 0, 1), 2.2),
    Part.Circle(V(2681.8, 114, 0), V(0, 0, 1), 2.2),
    Part.Circle(V(2707.8, 114, 0), V(0, 0, 1), 2.2),
], False)
sketch10.addConstraint([
    Sketcher.Constraint("Equal", 0, 1),
    Sketcher.Constraint("Equal", 1, 2),
    Sketcher.Constraint("Equal", 2, 3),
    Sketcher.Constraint("Horizontal", 0, 3, 1, 3),
    Sketcher.Constraint("Horizontal", 2, 3, 3, 3),
    Sketcher.Constraint("Vertical", 0, 3, 2, 3),
    Sketcher.Constraint("Vertical", 1, 3, 3, 3),
    Sketcher.Constraint("Diameter", 0, 4.5),
    Sketcher.Constraint("DistanceY", -1, 1, 0, 3, 140.0),
    Sketcher.Constraint("DistanceY", -1, 1, 2, 3, 114.0),
    Sketcher.Constraint("DistanceX", 0, 3, 1, 3, 26.0),
    Sketcher.Constraint("DistanceX", -1, 1, 0, 3, 2681.778119),
])
pocket7 = doc.addObject("PartDesign::Pocket", "Pocket006")
body.addObject(pocket7)
pocket7.Profile = sketch10
pocket7.Type = "ThroughAll"

# Sketch on XZ plane
sketch11 = doc.addObject("Sketcher::SketchObject", "Sketch010")
body.addObject(sketch11)
sketch11.AttachmentSupport = (doc.XZ_Plane, [""])
sketch11.MapMode = "FlatFace"
sketch11.AttachmentOffset = App.Placement(V(0, 0, -1040.203369), App.Rotation())
sketch11.addGeometry([
    Part.Circle(V(2681.8, 140, 0), V(0, 0, 1), 4.2),
    Part.Circle(V(2707.8, 140, 0), V(0, 0, 1), 4.2),
    Part.Circle(V(2707.8, 114, 0), V(0, 0, 1), 4.2),
    Part.Circle(V(2681.8, 114, 0), V(0, 0, 1), 4.2),
], False)
sketch11.addConstraint([
    Sketcher.Constraint("Equal", 0, 1),
    Sketcher.Constraint("Equal", 1, 2),
    Sketcher.Constraint("Equal", 2, 3),
    Sketcher.Constraint("Horizontal", 0, 3, 1, 3),
    Sketcher.Constraint("Horizontal", 2, 3, 3, 3),
    Sketcher.Constraint("Vertical", 1, 3, 2, 3),
    Sketcher.Constraint("Vertical", 0, 3, 3, 3),
    Sketcher.Constraint("Diameter", 0, 8.5),
    Sketcher.Constraint("DistanceY", -1, 1, 0, 3, 140.0),
    Sketcher.Constraint("DistanceY", -1, 1, 2, 3, 114.0),
    Sketcher.Constraint("DistanceX", 0, 3, 1, 3, 26.0),
    Sketcher.Constraint("DistanceX", -1, 1, 0, 3, 2681.778119),
])
pocket8 = doc.addObject("PartDesign::Pocket", "Pocket007")
body.addObject(pocket8)
pocket8.Profile = sketch11
pocket8.Length = 5
doc.recompute()

datumplane = doc.addObject("PartDesign::Plane", "DatumPlane")
body.addObject(datumplane)
datumplane.AttachmentSupport = (doc.XY_Plane, [""])
datumplane.MapMode = "FlatFace"
datumplane.AttachmentOffset = App.Placement(V(0, 0, 76), App.Rotation())
mirrored = doc.addObject("PartDesign::Mirrored", "Mirrored")
body.addObject(mirrored)
mirrored.Originals = [pocket7, pocket8]
mirrored.MirrorPlane = (datumplane, [""])
body.Tip = mirrored

# Sketch on YZ plane
sketch12 = doc.addObject("Sketcher::SketchObject", "Sketch011")
body.addObject(sketch12)
sketch12.AttachmentSupport = (doc.YZ_Plane, [""])
sketch12.MapMode = "FlatFace"
sketch12.AttachmentOffset = App.Placement(V(0, 0, 2625.278119), App.Rotation())
sketch12.addGeometry(Part.Circle(V(1092.203369, 138, 0), V(0, 0, 1), 2.1), False)
sketch12.addConstraint([
    Sketcher.Constraint("Diameter", 0, 4.2),
    Sketcher.Constraint("DistanceY", -1, 1, 0, 3, 138.0),
    Sketcher.Constraint("DistanceX", -1, 1, 0, 3, 1092.203369),
])
pocket9 = doc.addObject("PartDesign::Pocket", "Pocket008")
body.addObject(pocket9)
pocket9.Profile = sketch12
pocket9.Type = "UpToFirst"
pocket9.Reversed = True

# Sketch on YZ plane
sketch13 = doc.addObject("Sketcher::SketchObject", "Sketch012")
body.addObject(sketch13)
sketch13.AttachmentSupport = (doc.YZ_Plane, [""])
sketch13.MapMode = "FlatFace"
sketch13.AttachmentOffset = App.Placement(V(0, 0, 2625.278119), App.Rotation())
sketch13.addGeometry(Part.Circle(V(1070.203369, 138, 0), V(0, 0, 1), 2.1), False)
sketch13.addConstraint([
    Sketcher.Constraint("Diameter", 0, 4.2),
    Sketcher.Constraint("DistanceY", -1, 1, 0, 3, 138.0),
    Sketcher.Constraint("DistanceX", -1, 1, 0, 3, 1070.203369),
])
pocket10 = doc.addObject("PartDesign::Pocket", "Pocket009")
body.addObject(pocket10)
pocket10.Profile = sketch13
pocket10.Type = "UpToFirst"
pocket10.Reversed = True

# Sketch on XZ plane
sketch14 = doc.addObject("Sketcher::SketchObject", "Sketch013")
body.addObject(sketch14)
sketch14.AttachmentSupport = (doc.XZ_Plane, [""])
sketch14.MapMode = "FlatFace"
sketch14.AttachmentOffset = App.Placement(V(0, 0, -1084.203369), App.Rotation())
sketch14.addGeometry([
    Part.LineSegment(V(2760, 124, 0), V(2760, 107, 0)),  # 0
    Part.ArcOfCircle(Part.Circle(V(2770, 107, 0), V(0, 0, 1), 10), math.radians(180), math.radians(270)),  # 1
    Part.LineSegment(V(2770, 97, 0), V(2788, 97, 0)),  # 2
    Part.LineSegment(V(2788, 97, 0), V(2788, 119, 0)),  # 3
    Part.ArcOfCircle(Part.Circle(V(2783, 119, 0), V(0, 0, 1), 5), math.radians(0), math.radians(90)),  # 4
    Part.LineSegment(V(2783, 124, 0), V(2760, 124, 0)),  # 5
], False)
sketch14.addConstraint([
    Sketcher.Constraint("Tangent", 0, 2, 1, 1),
    Sketcher.Constraint("Tangent", 1, 2, 2, 1),
    Sketcher.Constraint("Coincident", 2, 2, 3, 1),
    Sketcher.Constraint("Tangent", 3, 2, 4, 1),
    Sketcher.Constraint("Tangent", 4, 2, 5, 1),
    Sketcher.Constraint("Coincident", 5, 2, 0, 1),
    Sketcher.Constraint("Vertical", 0),
    Sketcher.Constraint("Horizontal", 2),
    Sketcher.Constraint("Vertical", 3),
    Sketcher.Constraint("Horizontal", 5),
    Sketcher.Constraint("Radius", 1, 10.0),
    Sketcher.Constraint("Radius", 4, 5.0),
    Sketcher.Constraint("DistanceX", 2, 1, 2, 2, 18.0),
    Sketcher.Constraint("DistanceY", 0, 2, 0, 1, 17.0),
    Sketcher.Constraint("DistanceY", -1, 1, 1, 3, 107.0),
    Sketcher.Constraint("DistanceX", -1, 1, 1, 3, 2769.778119),
])
pocket11 = doc.addObject("PartDesign::Pocket", "Pocket010")
body.addObject(pocket11)
pocket11.Profile = sketch14
pocket11.Length = 100
pocket11.Midplane = True

# Sketch on XZ plane
sketch15 = doc.addObject("Sketcher::SketchObject", "Sketch014")
body.addObject(sketch15)
sketch15.AttachmentSupport = (doc.XZ_Plane, [""])
sketch15.MapMode = "FlatFace"
sketch15.AttachmentOffset = App.Placement(V(0, 0, -1024.203369), App.Rotation())
sketch15.addGeometry([
    Part.Circle(V(2615, 76, 0), V(0, 0, 1), 16),
    Part.Circle(V(2775, 76, 0), V(0, 0, 1), 16),
], False)
sketch15.addConstraint([
    Sketcher.Constraint("Equal", 0, 1),
    Sketcher.Constraint("Horizontal", 0, 3, 1, 3),
    Sketcher.Constraint("Diameter", 0, 32.0),
    Sketcher.Constraint("DistanceY", -1, 1, 0, 3, 76.0),
    Sketcher.Constraint("DistanceX", 0, 3, 1, 3, 160.0),
    Sketcher.Constraint("DistanceX", -1, 1, 0, 3, 2614.778119),
])
pocket12 = doc.addObject("PartDesign::Pocket", "Pocket011")
body.addObject(pocket12)
pocket12.Profile = sketch15
pocket12.Type = "ThroughAll"

# Sketch on XY plane
sketch16 = doc.addObject("Sketcher::SketchObject", "Sketch015")
body.addObject(sketch16)
sketch16.AttachmentSupport = (doc.XY_Plane, [""])
sketch16.MapMode = "FlatFace"
sketch16.AttachmentOffset = App.Placement(V(0, 0, 152), App.Rotation())
sketch16.addGeometry([
    Part.Circle(V(2648, 1081, 0), V(0, 0, 1), 16),
    Part.Circle(V(2741, 1081, 0), V(0, 0, 1), 16),
], False)
sketch16.addConstraint([
    Sketcher.Constraint("Equal", 0, 1),
    Sketcher.Constraint("Horizontal", 0, 3, 1, 3),
    Sketcher.Constraint("Diameter", 0, 32.0),
    Sketcher.Constraint("DistanceX", 0, 3, 1, 3, 93.0),
    Sketcher.Constraint("DistanceX", -1, 1, 0, 3, 2648.278119),
    Sketcher.Constraint("DistanceY", -1, 1, 0, 3, 1081.203369),
])
pocket13 = doc.addObject("PartDesign::Pocket", "Pocket012")
body.addObject(pocket13)
pocket13.Profile = sketch16
pocket13.Type = "ThroughAll"

# Sketch on XY plane
sketch17 = doc.addObject("Sketcher::SketchObject", "Sketch016")
body.addObject(sketch17)
sketch17.AttachmentSupport = (doc.XY_Plane, [""])
sketch17.MapMode = "FlatFace"
sketch17.addGeometry([
    Part.Circle(V(2756.3, 1096.2, 0), V(0, 0, 1), 2.1),
    Part.Circle(V(2726.3, 1096.2, 0), V(0, 0, 1), 2.1),
    Part.Circle(V(2726.3, 1066.2, 0), V(0, 0, 1), 2.1),
    Part.Circle(V(2756.3, 1066.2, 0), V(0, 0, 1), 2.1),
], False)
sketch17.addConstraint([
    Sketcher.Constraint("Equal", 0, 1),
    Sketcher.Constraint("Equal", 1, 2),
    Sketcher.Constraint("Equal", 2, 3),
    Sketcher.Constraint("Horizontal", 0, 3, 1, 3),
    Sketcher.Constraint("Horizontal", 2, 3, 3, 3),
    Sketcher.Constraint("Vertical", 1, 3, 2, 3),
    Sketcher.Constraint("Vertical", 0, 3, 3, 3),
    Sketcher.Constraint("Diameter", 0, 4.2),
    Sketcher.Constraint("DistanceX", 1, 3, 0, 3, 30.0),
    Sketcher.Constraint("DistanceY", 2, 3, 1, 3, 30.0),
    Sketcher.Constraint("DistanceX", -1, 1, 0, 3, 2756.278119),
    Sketcher.Constraint("DistanceY", -1, 1, 0, 3, 1096.203369),
])
pocket14 = doc.addObject("PartDesign::Pocket", "Pocket013")
body.addObject(pocket14)
pocket14.Profile = sketch17
pocket14.Length = 15
pocket14.Reversed = True
doc.recompute()

datumplane2 = doc.addObject("PartDesign::Plane", "DatumPlane001")
body.addObject(datumplane2)
datumplane2.AttachmentSupport = (doc.XY_Plane, [""])
datumplane2.MapMode = "FlatFace"
datumplane2.AttachmentOffset = App.Placement(V(0, 0, 76), App.Rotation())
mirrored2 = doc.addObject("PartDesign::Mirrored", "Mirrored001")
body.addObject(mirrored2)
mirrored2.Originals = [pocket14]
mirrored2.MirrorPlane = (datumplane2, [""])
body.Tip = mirrored2

# Sketch on YZ plane
sketch18 = doc.addObject("Sketcher::SketchObject", "Sketch017")
body.addObject(sketch18)
sketch18.AttachmentSupport = (doc.YZ_Plane, [""])
sketch18.MapMode = "FlatFace"
sketch18.AttachmentOffset = App.Placement(V(0, 0, 2625.278119), App.Rotation())
sketch18.addGeometry([
    Part.Circle(V(1070.203369, 17, 0), V(0, 0, 1), 2.1),
    Part.Circle(V(1092.203369, 17, 0), V(0, 0, 1), 2.1),
], False)
sketch18.addConstraint([
    Sketcher.Constraint("Equal", 0, 1),
    Sketcher.Constraint("Horizontal", 0, 3, 1, 3),
    Sketcher.Constraint("Diameter", 0, 4.2),
    Sketcher.Constraint("DistanceY", -1, 1, 0, 3, 17.0),
    Sketcher.Constraint("DistanceX", 0, 3, 1, 3, 22.0),
    Sketcher.Constraint("DistanceX", -1, 1, 0, 3, 1070.203369),
])
doc.recompute()
hole = doc.addObject("PartDesign::Hole", "Hole")
body.addObject(hole)
hole.Profile = sketch18
hole.ThreadType = "None"
hole.Diameter = 4.2
hole.DepthType = "Dimension"
hole.Depth = 12.4
hole.DrillPoint = "Angled"
hole.DrillPointAngle = 118
hole.Reversed = True

doc.recompute()
